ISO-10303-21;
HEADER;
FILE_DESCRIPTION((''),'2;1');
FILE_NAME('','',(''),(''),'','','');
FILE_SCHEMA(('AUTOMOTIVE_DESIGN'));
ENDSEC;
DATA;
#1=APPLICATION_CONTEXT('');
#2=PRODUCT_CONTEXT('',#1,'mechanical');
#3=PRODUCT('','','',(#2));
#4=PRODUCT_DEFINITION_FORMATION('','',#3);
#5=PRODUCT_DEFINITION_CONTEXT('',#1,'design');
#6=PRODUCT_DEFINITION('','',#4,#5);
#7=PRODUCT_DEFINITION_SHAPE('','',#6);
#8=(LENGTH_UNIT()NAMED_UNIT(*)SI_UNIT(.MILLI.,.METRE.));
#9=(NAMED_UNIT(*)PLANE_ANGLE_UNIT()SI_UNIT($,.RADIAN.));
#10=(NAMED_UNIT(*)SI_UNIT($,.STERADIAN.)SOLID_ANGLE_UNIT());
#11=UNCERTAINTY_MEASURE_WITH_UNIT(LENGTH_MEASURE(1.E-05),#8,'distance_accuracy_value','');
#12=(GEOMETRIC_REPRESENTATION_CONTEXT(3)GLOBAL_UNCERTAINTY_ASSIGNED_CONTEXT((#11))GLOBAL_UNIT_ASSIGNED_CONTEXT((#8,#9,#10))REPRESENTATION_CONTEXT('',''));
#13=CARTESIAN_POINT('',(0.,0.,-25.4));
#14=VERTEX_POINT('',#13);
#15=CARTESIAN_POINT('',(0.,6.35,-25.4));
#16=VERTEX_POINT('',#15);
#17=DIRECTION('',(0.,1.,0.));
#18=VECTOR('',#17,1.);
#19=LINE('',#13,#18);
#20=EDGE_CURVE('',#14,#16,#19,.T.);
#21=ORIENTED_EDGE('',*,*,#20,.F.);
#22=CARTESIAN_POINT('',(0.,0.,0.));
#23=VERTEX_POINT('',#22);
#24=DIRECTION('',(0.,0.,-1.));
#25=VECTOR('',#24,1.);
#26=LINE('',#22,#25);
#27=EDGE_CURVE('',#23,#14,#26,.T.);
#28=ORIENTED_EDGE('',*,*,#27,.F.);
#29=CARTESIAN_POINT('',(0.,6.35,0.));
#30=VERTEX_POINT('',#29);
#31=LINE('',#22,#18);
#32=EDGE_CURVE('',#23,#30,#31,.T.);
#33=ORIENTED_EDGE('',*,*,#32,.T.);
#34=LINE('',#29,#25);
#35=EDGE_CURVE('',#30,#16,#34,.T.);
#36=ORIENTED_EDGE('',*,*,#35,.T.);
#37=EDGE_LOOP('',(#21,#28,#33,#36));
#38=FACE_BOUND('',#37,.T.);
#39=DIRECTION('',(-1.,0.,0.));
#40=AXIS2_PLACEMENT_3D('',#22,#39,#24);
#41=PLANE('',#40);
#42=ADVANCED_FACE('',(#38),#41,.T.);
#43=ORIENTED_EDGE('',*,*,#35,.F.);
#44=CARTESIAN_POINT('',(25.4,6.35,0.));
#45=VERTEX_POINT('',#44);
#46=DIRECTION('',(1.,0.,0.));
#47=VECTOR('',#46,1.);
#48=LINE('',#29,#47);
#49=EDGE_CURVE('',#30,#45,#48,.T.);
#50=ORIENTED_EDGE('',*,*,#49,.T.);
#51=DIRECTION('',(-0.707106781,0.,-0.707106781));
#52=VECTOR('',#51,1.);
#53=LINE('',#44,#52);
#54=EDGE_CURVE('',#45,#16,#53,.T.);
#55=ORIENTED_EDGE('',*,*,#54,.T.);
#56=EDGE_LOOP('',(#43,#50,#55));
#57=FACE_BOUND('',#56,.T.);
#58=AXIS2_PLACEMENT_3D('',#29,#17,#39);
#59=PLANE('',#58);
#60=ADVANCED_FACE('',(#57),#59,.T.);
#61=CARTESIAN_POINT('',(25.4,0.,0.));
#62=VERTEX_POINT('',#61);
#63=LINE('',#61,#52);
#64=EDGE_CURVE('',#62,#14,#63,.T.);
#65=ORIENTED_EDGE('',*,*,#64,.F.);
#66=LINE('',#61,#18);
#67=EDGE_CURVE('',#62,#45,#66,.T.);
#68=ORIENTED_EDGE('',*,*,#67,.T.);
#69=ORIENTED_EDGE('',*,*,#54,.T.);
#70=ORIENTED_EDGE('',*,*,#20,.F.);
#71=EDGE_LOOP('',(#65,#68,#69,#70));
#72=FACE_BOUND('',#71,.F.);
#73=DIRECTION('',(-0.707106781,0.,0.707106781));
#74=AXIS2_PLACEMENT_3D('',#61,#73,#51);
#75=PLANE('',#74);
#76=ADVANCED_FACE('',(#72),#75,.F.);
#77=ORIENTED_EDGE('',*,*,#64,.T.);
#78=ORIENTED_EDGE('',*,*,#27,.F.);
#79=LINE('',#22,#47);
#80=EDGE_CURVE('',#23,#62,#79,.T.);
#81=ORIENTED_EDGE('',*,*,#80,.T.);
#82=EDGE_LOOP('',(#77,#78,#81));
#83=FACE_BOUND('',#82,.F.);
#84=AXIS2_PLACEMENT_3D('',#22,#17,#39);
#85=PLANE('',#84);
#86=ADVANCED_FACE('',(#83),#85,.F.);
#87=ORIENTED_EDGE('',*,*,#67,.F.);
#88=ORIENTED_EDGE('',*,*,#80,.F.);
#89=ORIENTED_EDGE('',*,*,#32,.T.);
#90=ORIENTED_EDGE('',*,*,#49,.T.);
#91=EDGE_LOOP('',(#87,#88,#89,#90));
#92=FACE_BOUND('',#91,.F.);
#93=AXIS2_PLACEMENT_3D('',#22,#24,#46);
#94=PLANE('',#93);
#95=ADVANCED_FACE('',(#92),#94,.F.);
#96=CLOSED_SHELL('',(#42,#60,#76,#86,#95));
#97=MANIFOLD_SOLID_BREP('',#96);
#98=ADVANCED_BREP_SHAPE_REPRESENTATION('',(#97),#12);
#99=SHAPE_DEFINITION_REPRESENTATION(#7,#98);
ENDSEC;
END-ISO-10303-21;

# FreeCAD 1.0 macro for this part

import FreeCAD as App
import Part
import Sketcher

V = App.Vector
Q = App.Units.Quantity


def add_polygon(sketch, points):
    """Adds a closed chain of lines whose ends are joined by coincident constraints."""
    first, n = sketch.GeometryCount, len(points)
    for a, b in zip(points, points[1:] + points[:1]):
        sketch.addGeometry(Part.LineSegment(App.Vector(*a, 0), App.Vector(*b, 0)), False)
    for i in range(n):
        sketch.addConstraint(Sketcher.Constraint("Coincident", first + i, 2, first + (i + 1) % n, 1))

doc = App.newDocument("Part")
body = doc.addObject("PartDesign::Body", "Body")

# Sketch on XZ plane
sketch1 = body.newObject("Sketcher::SketchObject", "Sketch")
sketch1.AttachmentSupport = (doc.getObject("XZ_Plane"), [""])
sketch1.MapMode = "FlatFace"
add_polygon(sketch1, [(0, -25), (0, 0), (25, 0)])  # lines 0-2
sketch1.addConstraint([
    Sketcher.Constraint("Vertical", 0),
    Sketcher.Constraint("Horizontal", 1),
    Sketcher.Constraint("Coincident", 0, 2, -1, 1),
    Sketcher.Constraint("Equal", 1, 0),
    Sketcher.Constraint("DistanceX", 1, 1, 1, 2, Q("1 in")),
])
pad1 = body.newObject("PartDesign::Pad", "Pad")
pad1.Profile = sketch1
pad1.Length = Q("0.25 in")
pad1.Reversed = True

doc.recompute()
